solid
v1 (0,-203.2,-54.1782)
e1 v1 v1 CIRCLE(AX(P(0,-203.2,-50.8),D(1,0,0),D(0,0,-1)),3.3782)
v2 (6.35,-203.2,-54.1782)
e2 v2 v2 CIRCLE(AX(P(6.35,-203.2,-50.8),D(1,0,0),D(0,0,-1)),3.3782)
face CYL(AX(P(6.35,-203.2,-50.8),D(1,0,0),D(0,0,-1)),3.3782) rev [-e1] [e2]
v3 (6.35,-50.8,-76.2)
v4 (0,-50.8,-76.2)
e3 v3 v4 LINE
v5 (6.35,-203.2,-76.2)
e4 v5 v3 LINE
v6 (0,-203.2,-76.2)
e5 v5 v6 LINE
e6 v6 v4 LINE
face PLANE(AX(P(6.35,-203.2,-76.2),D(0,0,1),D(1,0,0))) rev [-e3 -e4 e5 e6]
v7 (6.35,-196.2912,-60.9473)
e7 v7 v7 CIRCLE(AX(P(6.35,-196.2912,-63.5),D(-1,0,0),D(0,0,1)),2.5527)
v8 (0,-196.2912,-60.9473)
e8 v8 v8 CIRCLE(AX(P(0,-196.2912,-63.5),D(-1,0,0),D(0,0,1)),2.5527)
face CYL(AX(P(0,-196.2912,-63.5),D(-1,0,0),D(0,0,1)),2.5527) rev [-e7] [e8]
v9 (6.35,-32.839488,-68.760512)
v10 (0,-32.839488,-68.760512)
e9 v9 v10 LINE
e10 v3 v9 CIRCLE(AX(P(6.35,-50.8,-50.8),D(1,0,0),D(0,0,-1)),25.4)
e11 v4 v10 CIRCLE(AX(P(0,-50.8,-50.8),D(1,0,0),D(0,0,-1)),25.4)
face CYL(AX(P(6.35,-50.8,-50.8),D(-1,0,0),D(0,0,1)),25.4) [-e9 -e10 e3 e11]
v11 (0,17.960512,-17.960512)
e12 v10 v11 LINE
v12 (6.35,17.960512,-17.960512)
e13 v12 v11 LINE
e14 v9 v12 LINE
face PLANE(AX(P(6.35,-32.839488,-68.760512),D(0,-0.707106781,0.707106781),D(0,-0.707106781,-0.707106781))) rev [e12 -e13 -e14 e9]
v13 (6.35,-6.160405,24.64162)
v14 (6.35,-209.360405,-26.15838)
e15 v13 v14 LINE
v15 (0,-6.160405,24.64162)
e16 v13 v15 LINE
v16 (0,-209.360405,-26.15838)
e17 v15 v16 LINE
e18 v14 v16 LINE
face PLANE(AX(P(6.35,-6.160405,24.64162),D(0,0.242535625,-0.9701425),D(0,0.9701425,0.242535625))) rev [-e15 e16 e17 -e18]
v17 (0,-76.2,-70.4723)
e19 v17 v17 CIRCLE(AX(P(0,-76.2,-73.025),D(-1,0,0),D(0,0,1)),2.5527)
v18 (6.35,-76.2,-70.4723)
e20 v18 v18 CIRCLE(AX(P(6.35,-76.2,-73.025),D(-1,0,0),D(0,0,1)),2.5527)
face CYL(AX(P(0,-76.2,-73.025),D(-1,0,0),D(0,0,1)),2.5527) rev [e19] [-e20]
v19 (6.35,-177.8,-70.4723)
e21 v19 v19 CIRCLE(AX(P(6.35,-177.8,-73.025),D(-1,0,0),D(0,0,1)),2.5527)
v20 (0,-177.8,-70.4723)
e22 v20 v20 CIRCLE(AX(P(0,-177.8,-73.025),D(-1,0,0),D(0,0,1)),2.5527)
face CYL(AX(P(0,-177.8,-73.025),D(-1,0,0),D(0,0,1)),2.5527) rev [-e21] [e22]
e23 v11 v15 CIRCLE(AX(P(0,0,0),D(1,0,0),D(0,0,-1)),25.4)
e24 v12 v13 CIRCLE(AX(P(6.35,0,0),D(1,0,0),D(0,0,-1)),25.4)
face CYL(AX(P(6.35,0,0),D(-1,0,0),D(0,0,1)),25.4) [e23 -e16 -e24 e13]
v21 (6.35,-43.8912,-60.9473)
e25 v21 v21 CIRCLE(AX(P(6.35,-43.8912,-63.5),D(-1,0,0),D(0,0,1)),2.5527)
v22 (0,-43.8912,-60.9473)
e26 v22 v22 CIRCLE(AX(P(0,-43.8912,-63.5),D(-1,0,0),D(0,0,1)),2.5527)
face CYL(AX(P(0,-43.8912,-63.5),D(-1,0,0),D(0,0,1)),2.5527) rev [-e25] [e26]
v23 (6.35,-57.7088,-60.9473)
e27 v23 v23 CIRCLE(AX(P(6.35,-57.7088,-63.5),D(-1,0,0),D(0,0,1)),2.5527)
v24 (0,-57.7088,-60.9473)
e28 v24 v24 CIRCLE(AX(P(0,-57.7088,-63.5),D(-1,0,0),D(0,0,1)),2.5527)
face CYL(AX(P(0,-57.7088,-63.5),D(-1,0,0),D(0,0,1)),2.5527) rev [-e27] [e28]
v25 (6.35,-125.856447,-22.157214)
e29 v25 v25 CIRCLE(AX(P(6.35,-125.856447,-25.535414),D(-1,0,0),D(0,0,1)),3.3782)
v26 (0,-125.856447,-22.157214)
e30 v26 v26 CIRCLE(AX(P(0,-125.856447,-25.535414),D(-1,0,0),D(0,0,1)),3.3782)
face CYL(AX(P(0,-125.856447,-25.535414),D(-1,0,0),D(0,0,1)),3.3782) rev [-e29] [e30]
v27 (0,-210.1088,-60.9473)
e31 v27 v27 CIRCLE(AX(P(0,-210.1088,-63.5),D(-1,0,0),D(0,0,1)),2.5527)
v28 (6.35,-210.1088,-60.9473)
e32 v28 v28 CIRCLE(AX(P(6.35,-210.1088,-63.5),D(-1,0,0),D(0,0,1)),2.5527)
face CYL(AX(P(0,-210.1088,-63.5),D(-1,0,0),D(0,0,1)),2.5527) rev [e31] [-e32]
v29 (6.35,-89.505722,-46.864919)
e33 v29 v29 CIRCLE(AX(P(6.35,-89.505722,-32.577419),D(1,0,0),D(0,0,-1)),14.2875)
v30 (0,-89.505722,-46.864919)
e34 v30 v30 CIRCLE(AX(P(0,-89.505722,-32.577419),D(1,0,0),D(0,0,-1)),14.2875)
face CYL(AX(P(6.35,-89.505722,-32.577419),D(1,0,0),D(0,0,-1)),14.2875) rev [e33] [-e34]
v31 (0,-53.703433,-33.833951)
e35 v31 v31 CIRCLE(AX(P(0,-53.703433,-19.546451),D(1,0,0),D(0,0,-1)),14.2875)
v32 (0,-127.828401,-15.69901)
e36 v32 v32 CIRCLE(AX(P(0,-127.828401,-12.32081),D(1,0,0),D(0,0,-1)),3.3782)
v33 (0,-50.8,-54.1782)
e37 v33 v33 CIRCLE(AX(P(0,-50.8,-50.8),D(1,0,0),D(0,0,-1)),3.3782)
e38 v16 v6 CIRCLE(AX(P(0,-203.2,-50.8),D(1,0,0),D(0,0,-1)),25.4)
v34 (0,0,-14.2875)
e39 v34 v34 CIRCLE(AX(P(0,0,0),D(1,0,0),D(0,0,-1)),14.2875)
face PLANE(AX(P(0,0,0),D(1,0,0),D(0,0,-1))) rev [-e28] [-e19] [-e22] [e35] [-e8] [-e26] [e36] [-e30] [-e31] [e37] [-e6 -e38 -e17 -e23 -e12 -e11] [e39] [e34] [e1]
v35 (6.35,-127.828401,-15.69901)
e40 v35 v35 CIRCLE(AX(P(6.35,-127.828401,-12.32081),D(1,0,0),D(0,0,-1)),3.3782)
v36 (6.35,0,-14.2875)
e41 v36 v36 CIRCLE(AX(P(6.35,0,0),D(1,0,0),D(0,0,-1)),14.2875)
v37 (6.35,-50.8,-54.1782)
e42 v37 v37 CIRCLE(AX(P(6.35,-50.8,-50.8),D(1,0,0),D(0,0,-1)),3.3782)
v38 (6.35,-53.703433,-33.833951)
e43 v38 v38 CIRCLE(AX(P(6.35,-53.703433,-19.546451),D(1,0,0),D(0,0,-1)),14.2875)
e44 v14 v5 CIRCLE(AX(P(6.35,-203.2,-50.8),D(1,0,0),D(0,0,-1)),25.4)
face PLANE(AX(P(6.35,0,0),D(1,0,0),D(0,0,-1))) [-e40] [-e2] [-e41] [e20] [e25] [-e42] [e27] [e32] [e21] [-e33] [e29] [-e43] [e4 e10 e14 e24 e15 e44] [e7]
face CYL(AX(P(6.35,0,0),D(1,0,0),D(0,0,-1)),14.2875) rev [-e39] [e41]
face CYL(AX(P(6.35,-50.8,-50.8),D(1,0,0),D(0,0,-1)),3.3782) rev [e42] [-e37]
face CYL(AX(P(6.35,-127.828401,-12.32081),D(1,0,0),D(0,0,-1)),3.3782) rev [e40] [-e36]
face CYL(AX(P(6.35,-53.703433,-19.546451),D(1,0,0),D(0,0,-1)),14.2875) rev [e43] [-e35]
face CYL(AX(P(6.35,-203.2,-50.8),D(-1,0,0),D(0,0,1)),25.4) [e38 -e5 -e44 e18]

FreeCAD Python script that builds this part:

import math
import FreeCAD as App
import Part
import Sketcher

V = App.Vector
Q = App.Units.Quantity

doc = App.newDocument("Part")
body = doc.addObject("PartDesign::Body", "Body")

# Sketch on YZ plane
sketch1 = body.newObject("Sketcher::SketchObject", "Sketch")
sketch1.AttachmentSupport = (doc.getObject("YZ_Plane"), [""])
sketch1.MapMode = "FlatFace"
sketch1.addGeometry(Part.LineSegment(V(-33, -69, 0), V(18, -18, 0)), False)
sketch1.addGeometry(Part.ArcOfCircle(Part.Circle(V(0, 0, 0), V(0, 0, 1), 25), math.radians(-45), math.radians(104)), False)
sketch1.addGeometry(Part.LineSegment(V(-6, 25, 0), V(-209, -26, 0)), False)
sketch1.addGeometry(Part.ArcOfCircle(Part.Circle(V(-203, -51, 0), V(0, 0, 1), 25), math.radians(104), math.radians(270)), False)
sketch1.addGeometry(Part.LineSegment(V(-203, -76, 0), V(-51, -76, 0)), False)
sketch1.addGeometry(Part.ArcOfCircle(Part.Circle(V(-51, -51, 0), V(0, 0, 1), 25), math.radians(-90), math.radians(-45)), False)
sketch1.addConstraint(Sketcher.Constraint("Tangent", 0, 2, 1, 1))
sketch1.addConstraint(Sketcher.Constraint("Tangent", 1, 2, 2, 1))
sketch1.addConstraint(Sketcher.Constraint("Tangent", 2, 2, 3, 1))
sketch1.addConstraint(Sketcher.Constraint("Tangent", 3, 2, 4, 1))
sketch1.addConstraint(Sketcher.Constraint("Tangent", 4, 2, 5, 1))
sketch1.addConstraint(Sketcher.Constraint("Tangent", 5, 2, 0, 1))
sketch1.addConstraint(Sketcher.Constraint("Horizontal", 4))
sketch1.addConstraint(Sketcher.Constraint("Coincident", 1, 3, -1, 1))
sketch1.addConstraint(Sketcher.Constraint("Equal", 1, 3))
sketch1.addConstraint(Sketcher.Constraint("Equal", 3, 5))
sketch1.addConstraint(Sketcher.Constraint("Radius", 1, Q("1 in")))
sketch1.addConstraint(Sketcher.Constraint("DistanceX", 4, 1, 4, 2, Q("6 in")))
sketch1.addConstraint(Sketcher.Constraint("DistanceX", 3, 3, -1, 1, Q("8 in")))
sketch1.addConstraint(Sketcher.Constraint("DistanceY", 3, 3, -1, 1, Q("2 in")))
pad1 = body.newObject("PartDesign::Pad", "Pad")
pad1.Profile = sketch1
pad1.Length = Q("0.25 in")

# Sketch on YZ plane
sketch2 = body.newObject("Sketcher::SketchObject", "Sketch001")
sketch2.AttachmentSupport = (doc.getObject("YZ_Plane"), [""])
sketch2.MapMode = "FlatFace"
sketch2.AttachmentOffset = App.Placement(V(0, 0, 0.25 * 25.4), App.Rotation())
sketch2.addGeometry(Part.Circle(V(0, 0, 0), V(0, 0, 1), 14), False)
sketch2.addGeometry(Part.Circle(V(-54, -20, 0), V(0, 0, 1), 14), False)
sketch2.addGeometry(Part.Circle(V(-90, -33, 0), V(0, 0, 1), 14), False)
sketch2.addConstraint(Sketcher.Constraint("Coincident", 0, 3, -1, 1))
sketch2.addConstraint(Sketcher.Constraint("Equal", 0, 1))
sketch2.addConstraint(Sketcher.Constraint("Equal", 1, 2))
sketch2.addConstraint(Sketcher.Constraint("Diameter", 0, Q("1.125 in")))
sketch2.addConstraint(Sketcher.Constraint("DistanceY", 1, 3, -1, 1, Q("19.546451 mm")))
sketch2.addConstraint(Sketcher.Constraint("DistanceY", 2, 3, -1, 1, Q("32.577419 mm")))
sketch2.addConstraint(Sketcher.Constraint("DistanceX", 2, 3, 1, 3, Q("35.802289 mm")))
sketch2.addConstraint(Sketcher.Constraint("DistanceX", 1, 3, -1, 1, Q("53.703433 mm")))
doc.recompute()
hole = body.newObject("PartDesign::Hole", "Hole")
hole.Profile = sketch2
hole.ThreadType = "None"
hole.Diameter = Q("1.125 in")
hole.DepthType = "ThroughAll"

# Sketch on YZ plane
sketch3 = body.newObject("Sketcher::SketchObject", "Sketch002")
sketch3.AttachmentSupport = (doc.getObject("YZ_Plane"), [""])
sketch3.MapMode = "FlatFace"
sketch3.AttachmentOffset = App.Placement(V(0, 0, 0.25 * 25.4), App.Rotation())
sketch3.addGeometry(Part.Circle(V(-50.8, -50.8, 0), V(0, 0, 1), 3.4), False)
sketch3.addGeometry(Part.Circle(V(-203.2, -50.8, 0), V(0, 0, 1), 3.4), False)
sketch3.addGeometry(Part.Circle(V(-127.8, -12.3, 0), V(0, 0, 1), 3.4), False)
sketch3.addConstraint(Sketcher.Constraint("Equal", 0, 1))
sketch3.addConstraint(Sketcher.Constraint("Equal", 1, 2))
sketch3.addConstraint(Sketcher.Constraint("Horizontal", 0, 3, 1, 3))
sketch3.addConstraint(Sketcher.Constraint("Diameter", 0, Q("0.266 in")))
sketch3.addConstraint(Sketcher.Constraint("DistanceX", 0, 3, -1, 1, Q("2 in")))
sketch3.addConstraint(Sketcher.Constraint("DistanceY", 0, 3, -1, 1, Q("2 in")))
sketch3.addConstraint(Sketcher.Constraint("DistanceX", 1, 3, -1, 1, Q("8 in")))
sketch3.addConstraint(Sketcher.Constraint("DistanceX", 2, 3, -1, 1, Q("127.828401 mm")))
sketch3.addConstraint(Sketcher.Constraint("DistanceY", 2, 3, -1, 1, Q("12.32081 mm")))
doc.recompute()
hole2 = body.newObject("PartDesign::Hole", "Hole001")
hole2.Profile = sketch3
hole2.ThreadType = "None"
hole2.Diameter = Q("0.266 in")
hole2.DepthType = "ThroughAll"

# Sketch on YZ plane
sketch4 = body.newObject("Sketcher::SketchObject", "Sketch003")
sketch4.AttachmentSupport = (doc.getObject("YZ_Plane"), [""])
sketch4.MapMode = "FlatFace"
sketch4.addGeometry(Part.Circle(V(-57.7, -63.5, 0), V(0, 0, 1), 2.6), False)
sketch4.addGeometry(Part.Circle(V(-43.9, -63.5, 0), V(0, 0, 1), 2.6), False)
sketch4.addGeometry(Part.Circle(V(-210.1, -63.5, 0), V(0, 0, 1), 2.6), False)
sketch4.addGeometry(Part.Circle(V(-196.3, -63.5, 0), V(0, 0, 1), 2.6), False)
sketch4.addConstraint(Sketcher.Constraint("Equal", 0, 1))
sketch4.addConstraint(Sketcher.Constraint("Equal", 1, 2))
sketch4.addConstraint(Sketcher.Constraint("Equal", 2, 3))
sketch4.addConstraint(Sketcher.Constraint("Horizontal", 0, 3, 1, 3))
sketch4.addConstraint(Sketcher.Constraint("Horizontal", 1, 3, 2, 3))
sketch4.addConstraint(Sketcher.Constraint("Horizontal", 2, 3, 3, 3))
sketch4.addConstraint(Sketcher.Constraint("Diameter", 0, Q("0.201 in")))
sketch4.addConstraint(Sketcher.Constraint("DistanceX", 2, 3, 0, 3, Q("6 in")))
sketch4.addConstraint(Sketcher.Constraint("DistanceX", 3, 3, 1, 3, Q("6 in")))
sketch4.addConstraint(Sketcher.Constraint("DistanceY", 0, 3, -1, 1, Q("2.5 in")))
sketch4.addConstraint(Sketcher.Constraint("DistanceX", 0, 3, -1, 1, Q("2.272 in")))
sketch4.addConstraint(Sketcher.Constraint("DistanceX", 1, 3, -1, 1, Q("1.728 in")))
doc.recompute()
hole3 = body.newObject("PartDesign::Hole", "Hole002")
hole3.Profile = sketch4
hole3.ThreadType = "None"
hole3.Diameter = Q("0.201 in")
hole3.DepthType = "ThroughAll"
hole3.Reversed = True

# Sketch on YZ plane
sketch5 = body.newObject("Sketcher::SketchObject", "Sketch004")
sketch5.AttachmentSupport = (doc.getObject("YZ_Plane"), [""])
sketch5.MapMode = "FlatFace"
sketch5.addGeometry(Part.Circle(V(-125.9, -25.5, 0), V(0, 0, 1), 3.4), False)
sketch5.addConstraint(Sketcher.Constraint("Diameter", 0, Q("0.266 in")))
sketch5.addConstraint(Sketcher.Constraint("DistanceX", 0, 3, -1, 1, Q("125.856447 mm")))
sketch5.addConstraint(Sketcher.Constraint("DistanceY", 0, 3, -1, 1, Q("25.535414 mm")))
doc.recompute()
hole4 = body.newObject("PartDesign::Hole", "Hole003")
hole4.Profile = sketch5
hole4.ThreadType = "None"
hole4.Diameter = Q("0.266 in")
hole4.DepthType = "ThroughAll"
hole4.Reversed = True

# Sketch on YZ plane
sketch6 = body.newObject("Sketcher::SketchObject", "Sketch005")
sketch6.AttachmentSupport = (doc.getObject("YZ_Plane"), [""])
sketch6.MapMode = "FlatFace"
sketch6.addGeometry(Part.Circle(V(-76.2, -73, 0), V(0, 0, 1), 2.6), False)
sketch6.addGeometry(Part.Circle(V(-177.8, -73, 0), V(0, 0, 1), 2.6), False)
sketch6.addConstraint(Sketcher.Constraint("Equal", 0, 1))
sketch6.addConstraint(Sketcher.Constraint("Horizontal", 0, 3, 1, 3))
sketch6.addConstraint(Sketcher.Constraint("Diameter", 0, Q("0.201 in")))
sketch6.addConstraint(Sketcher.Constraint("DistanceX", 0, 3, -1, 1, Q("3 in")))
sketch6.addConstraint(Sketcher.Constraint("DistanceX", 1, 3, -1, 1, Q("7 in")))
sketch6.addConstraint(Sketcher.Constraint("DistanceY", 0, 3, -1, 1, Q("2.875 in")))
doc.recompute()
hole5 = body.newObject("PartDesign::Hole", "Hole004")
hole5.Profile = sketch6
hole5.ThreadType = "None"
hole5.Diameter = Q("0.201 in")
hole5.DepthType = "ThroughAll"
hole5.Reversed = True

doc.recompute()
